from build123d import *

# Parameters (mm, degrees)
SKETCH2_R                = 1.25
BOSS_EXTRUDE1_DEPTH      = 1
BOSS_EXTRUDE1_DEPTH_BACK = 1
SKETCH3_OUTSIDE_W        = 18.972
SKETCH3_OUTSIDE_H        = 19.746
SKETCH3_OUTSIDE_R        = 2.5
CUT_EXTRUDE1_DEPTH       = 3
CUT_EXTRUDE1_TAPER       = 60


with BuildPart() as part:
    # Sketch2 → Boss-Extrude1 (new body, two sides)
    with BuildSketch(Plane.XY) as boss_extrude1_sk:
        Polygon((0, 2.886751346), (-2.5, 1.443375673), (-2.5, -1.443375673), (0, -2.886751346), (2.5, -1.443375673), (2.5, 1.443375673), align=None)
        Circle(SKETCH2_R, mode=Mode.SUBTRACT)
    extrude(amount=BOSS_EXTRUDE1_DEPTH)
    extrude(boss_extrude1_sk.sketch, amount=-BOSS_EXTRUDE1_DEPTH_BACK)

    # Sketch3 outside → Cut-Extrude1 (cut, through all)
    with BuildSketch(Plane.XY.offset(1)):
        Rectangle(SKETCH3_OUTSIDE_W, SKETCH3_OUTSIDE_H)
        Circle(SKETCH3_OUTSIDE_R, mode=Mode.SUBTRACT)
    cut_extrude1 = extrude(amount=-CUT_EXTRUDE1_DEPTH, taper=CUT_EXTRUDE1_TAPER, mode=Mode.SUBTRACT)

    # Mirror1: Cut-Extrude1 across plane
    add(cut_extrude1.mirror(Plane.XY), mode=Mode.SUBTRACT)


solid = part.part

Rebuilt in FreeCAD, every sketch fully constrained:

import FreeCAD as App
import Part
import Sketcher
from FreeCAD import Vector
Q = App.Units.Quantity

doc = App.newDocument("Part")
body = doc.addObject("PartDesign::Body", "Body")

sketch1 = doc.addObject("Sketcher::SketchObject", "Sketch")
body.addObject(sketch1)
sketch1.AttachmentSupport = (doc.XY_Plane, [""])
sketch1.MapMode = "FlatFace"
sketch1.addGeometry(Part.LineSegment(Vector(0, 2.886751, 0), Vector(-2.5, 1.443376, 0)), False)
sketch1.addGeometry(Part.LineSegment(Vector(-2.5, 1.443376, 0), Vector(-2.5, -1.443376, 0)), False)
sketch1.addGeometry(Part.LineSegment(Vector(-2.5, -1.443376, 0), Vector(0, -2.886751, 0)), False)
sketch1.addGeometry(Part.LineSegment(Vector(0, -2.886751, 0), Vector(2.5, -1.443376, 0)), False)
sketch1.addGeometry(Part.LineSegment(Vector(2.5, -1.443376, 0), Vector(2.5, 1.443376, 0)), False)
sketch1.addGeometry(Part.LineSegment(Vector(2.5, 1.443376, 0), Vector(0, 2.886751, 0)), False)
sketch1.addGeometry(Part.Circle(Vector(0, 0, 0), Vector(0, 0, 1), 1.25), False)
sketch1.addConstraint(Sketcher.Constraint("Coincident", 0, 2, 1, 1))
sketch1.addConstraint(Sketcher.Constraint("Coincident", 1, 2, 2, 1))
sketch1.addConstraint(Sketcher.Constraint("Coincident", 2, 2, 3, 1))
sketch1.addConstraint(Sketcher.Constraint("Coincident", 3, 2, 4, 1))
sketch1.addConstraint(Sketcher.Constraint("Coincident", 4, 2, 5, 1))
sketch1.addConstraint(Sketcher.Constraint("Coincident", 5, 2, 0, 1))
sketch1.addConstraint(Sketcher.Constraint("Vertical", 1))
sketch1.addConstraint(Sketcher.Constraint("Vertical", 4))
sketch1.addConstraint(Sketcher.Constraint("Coincident", 6, 3, -1, 1))
sketch1.addConstraint(Sketcher.Constraint("Symmetric", 0, 2, 3, 2, -1, 1))
sketch1.addConstraint(Sketcher.Constraint("Symmetric", 2, 2, 5, 2, -1, 1))
sketch1.addConstraint(Sketcher.Constraint("PointOnObject", 2, 2, -2))
sketch1.addConstraint(Sketcher.Constraint("Parallel", 2, 5))
sketch1.addConstraint(Sketcher.Constraint("Horizontal", 1, 2, 3, 2))
sketch1.addConstraint(Sketcher.Constraint("Diameter", 6, Q("2.5 mm")))
sketch1.addConstraint(Sketcher.Constraint("Angle", 0, Q("-150 deg")))
sketch1.addConstraint(Sketcher.Constraint("DistanceX", 1, 2, 3, 2, Q("5 mm")))
sketch1.addConstraint(Sketcher.Constraint("DistanceY", 1, 2, 1, 1, Q("2.886751 mm")))
pad1 = doc.addObject("PartDesign::Pad", "Pad")
body.addObject(pad1)
pad1.Profile = sketch1
pad1.Type = "TwoLengths"
pad1.Length = 1
pad1.Length2 = 1

sketch2 = doc.addObject("Sketcher::SketchObject", "Sketch001")
body.addObject(sketch2)
sketch2.AttachmentSupport = (doc.XY_Plane, [""])
sketch2.MapMode = "FlatFace"
sketch2.AttachmentOffset = App.Placement(Vector(0, 0, 1), App.Rotation())
sketch2.addGeometry(Part.LineSegment(Vector(-9.486, 9.873, 0), Vector(-9.486, -9.873, 0)), False)
sketch2.addGeometry(Part.LineSegment(Vector(-9.486, -9.873, 0), Vector(9.486, -9.873, 0)), False)
sketch2.addGeometry(Part.LineSegment(Vector(9.486, -9.873, 0), Vector(9.486, 9.873, 0)), False)
sketch2.addGeometry(Part.LineSegment(Vector(9.486, 9.873, 0), Vector(-9.486, 9.873, 0)), False)
sketch2.addGeometry(Part.Circle(Vector(0, 0, 0), Vector(0, 0, 1), 2.5), False)
sketch2.addConstraint(Sketcher.Constraint("Coincident", 0, 2, 1, 1))
sketch2.addConstraint(Sketcher.Constraint("Coincident", 1, 2, 2, 1))
sketch2.addConstraint(Sketcher.Constraint("Coincident", 2, 2, 3, 1))
sketch2.addConstraint(Sketcher.Constraint("Coincident", 3, 2, 0, 1))
sketch2.addConstraint(Sketcher.Constraint("Vertical", 0))
sketch2.addConstraint(Sketcher.Constraint("Horizontal", 1))
sketch2.addConstraint(Sketcher.Constraint("Vertical", 2))
sketch2.addConstraint(Sketcher.Constraint("Horizontal", 3))
sketch2.addConstraint(Sketcher.Constraint("Coincident", 4, 3, -1, 1))
sketch2.addConstraint(Sketcher.Constraint("Symmetric", 0, 2, 2, 2, -1, 1))
sketch2.addConstraint(Sketcher.Constraint("Diameter", 4, Q("5 mm")))
sketch2.addConstraint(Sketcher.Constraint("DistanceX", 1, 1, 1, 2, Q("18.972 mm")))
sketch2.addConstraint(Sketcher.Constraint("DistanceY", 0, 2, 0, 1, Q("19.746 mm")))
pocket1 = doc.addObject("PartDesign::Pocket", "Pocket")
body.addObject(pocket1)
pocket1.Profile = sketch2
pocket1.Length = 3
pocket1.TaperAngle = 60
doc.recompute()

mirrored = doc.addObject("PartDesign::Mirrored", "Mirrored")
body.addObject(mirrored)
mirrored.Originals = [pocket1]
mirrored.MirrorPlane = (doc.XY_Plane, [""])
body.Tip = mirrored

doc.recompute()
